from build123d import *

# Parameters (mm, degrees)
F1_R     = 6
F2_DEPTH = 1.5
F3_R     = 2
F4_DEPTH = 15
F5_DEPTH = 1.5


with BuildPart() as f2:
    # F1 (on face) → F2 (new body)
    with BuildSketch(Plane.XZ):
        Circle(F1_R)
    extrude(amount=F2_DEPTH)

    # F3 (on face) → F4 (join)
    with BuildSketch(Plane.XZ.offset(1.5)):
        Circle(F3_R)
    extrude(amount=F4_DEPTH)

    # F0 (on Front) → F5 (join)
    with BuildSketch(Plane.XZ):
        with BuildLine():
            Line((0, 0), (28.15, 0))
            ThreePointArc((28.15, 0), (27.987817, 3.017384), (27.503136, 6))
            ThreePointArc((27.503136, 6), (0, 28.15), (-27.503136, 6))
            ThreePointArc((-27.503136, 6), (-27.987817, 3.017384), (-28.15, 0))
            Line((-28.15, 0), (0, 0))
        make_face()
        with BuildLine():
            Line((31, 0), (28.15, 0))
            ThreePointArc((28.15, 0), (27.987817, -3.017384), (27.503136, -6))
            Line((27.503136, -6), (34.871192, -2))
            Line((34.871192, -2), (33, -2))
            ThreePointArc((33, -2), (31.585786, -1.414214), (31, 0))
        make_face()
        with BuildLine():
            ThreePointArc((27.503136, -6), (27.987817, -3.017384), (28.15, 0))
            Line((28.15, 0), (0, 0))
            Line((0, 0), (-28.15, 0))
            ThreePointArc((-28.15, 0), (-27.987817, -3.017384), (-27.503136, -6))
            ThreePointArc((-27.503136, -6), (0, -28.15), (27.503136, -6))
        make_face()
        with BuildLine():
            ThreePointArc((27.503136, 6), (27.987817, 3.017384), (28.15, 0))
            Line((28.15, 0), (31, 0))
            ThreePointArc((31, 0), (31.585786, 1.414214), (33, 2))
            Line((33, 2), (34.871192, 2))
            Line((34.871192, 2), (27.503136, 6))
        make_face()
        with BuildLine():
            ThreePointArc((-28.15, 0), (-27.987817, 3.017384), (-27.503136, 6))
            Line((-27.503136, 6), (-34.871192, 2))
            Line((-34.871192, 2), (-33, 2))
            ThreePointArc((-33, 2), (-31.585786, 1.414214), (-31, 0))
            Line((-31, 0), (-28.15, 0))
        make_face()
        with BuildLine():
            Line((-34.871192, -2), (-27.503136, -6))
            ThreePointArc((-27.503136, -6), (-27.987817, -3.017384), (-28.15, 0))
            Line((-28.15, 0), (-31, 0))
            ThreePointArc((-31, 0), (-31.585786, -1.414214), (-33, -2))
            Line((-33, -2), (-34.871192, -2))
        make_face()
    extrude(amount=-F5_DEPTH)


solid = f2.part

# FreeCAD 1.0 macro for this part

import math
import FreeCAD as App
import Part
import Sketcher
from FreeCAD import Vector
Q = App.Units.Quantity

doc = App.newDocument("Part")
params = doc.addObject("Spreadsheet::Sheet", "Params")
for row, (alias, value) in enumerate([
    ("sketch1_diameter", "12 mm"),
    ("pad1_length", "1.5 mm"),
    ("sketch2_diameter", "4 mm"),
    ("pad2_length", "15 mm"),
    ("sketch3_radius", "1.999999 mm"),
    ("sketch3_radius2", "28.15 mm"),
    ("pad3_length", "1.5 mm"),
], start=1):
    params.set(f"A{row}", alias)
    params.set(f"B{row}", "=" + value)
    params.setAlias(f"B{row}", alias)

body = doc.addObject("PartDesign::Body", "Body")

sketch1 = doc.addObject("Sketcher::SketchObject", "Sketch")
body.addObject(sketch1)
sketch1.AttachmentSupport = (doc.XZ_Plane, [""])
sketch1.MapMode = "FlatFace"
sketch1.addGeometry(Part.Circle(Vector(0, 0, 0), Vector(0, 0, 1), 6), False)
sketch1.addConstraint([
    Sketcher.Constraint("Coincident", 0, 3, -1, 1),
    Sketcher.Constraint("Diameter", 0, Q("12 mm")),
])
sketch1.setExpression("Constraints[1]", "Params.sketch1_diameter")
pad1 = doc.addObject("PartDesign::Pad", "Pad")
body.addObject(pad1)
pad1.Profile = sketch1
pad1.setExpression("Length", "Params.pad1_length")

sketch2 = doc.addObject("Sketcher::SketchObject", "Sketch001")
body.addObject(sketch2)
sketch2.AttachmentSupport = (doc.XZ_Plane, [""])
sketch2.MapMode = "FlatFace"
sketch2.AttachmentOffset = App.Placement(Vector(0, 0, 1.5), App.Rotation())
sketch2.addGeometry(Part.Circle(Vector(0, 0, 0), Vector(0, 0, 1), 2), False)
sketch2.addConstraint([
    Sketcher.Constraint("Coincident", 0, 3, -1, 1),
    Sketcher.Constraint("Diameter", 0, Q("4 mm")),
])
sketch2.setExpression("Constraints[1]", "Params.sketch2_diameter")
pad2 = doc.addObject("PartDesign::Pad", "Pad001")
body.addObject(pad2)
pad2.Profile = sketch2
pad2.setExpression("Length", "Params.pad2_length")

sketch3 = doc.addObject("Sketcher::SketchObject", "Sketch002")
body.addObject(sketch3)
sketch3.AttachmentSupport = (doc.XZ_Plane, [""])
sketch3.MapMode = "FlatFace"
sketch3.addGeometry([
    Part.ArcOfCircle(Part.Circle(Vector(0, 0, 0), Vector(0, 0, 1), 28.1), math.radians(12), math.radians(168)),
    Part.LineSegment(Vector(-27.5, 6, 0), Vector(-34.9, 2, 0)),
    Part.LineSegment(Vector(-34.9, 2, 0), Vector(-33, 2, 0)),
    Part.ArcOfCircle(Part.Circle(Vector(-33, 0, 0), Vector(0, 0, 1), 2), math.radians(0), math.radians(90)),
    Part.ArcOfCircle(Part.Circle(Vector(-33, 0, 0), Vector(0, 0, 1), 2), math.radians(-90), math.radians(0)),
    Part.LineSegment(Vector(-33, -2, 0), Vector(-34.9, -2, 0)),
    Part.LineSegment(Vector(-34.9, -2, 0), Vector(-27.5, -6, 0)),
    Part.ArcOfCircle(Part.Circle(Vector(0, 0, 0), Vector(0, 0, 1), 28.1), math.radians(-168), math.radians(-12)),
    Part.LineSegment(Vector(27.5, -6, 0), Vector(34.9, -2, 0)),
    Part.LineSegment(Vector(34.9, -2, 0), Vector(33, -2, 0)),
    Part.ArcOfCircle(Part.Circle(Vector(33, 0, 0), Vector(0, 0, 1), 2), math.radians(180), math.radians(270)),
    Part.ArcOfCircle(Part.Circle(Vector(33, 0, 0), Vector(0, 0, 1), 2), math.radians(90), math.radians(180)),
    Part.LineSegment(Vector(33, 2, 0), Vector(34.9, 2, 0)),
    Part.LineSegment(Vector(34.9, 2, 0), Vector(27.5, 6, 0)),
], False)
sketch3.addConstraint([
    Sketcher.Constraint("Coincident", 0, 2, 1, 1),
    Sketcher.Constraint("Coincident", 1, 2, 2, 1),
    Sketcher.Constraint("Tangent", 2, 2, 3, 2),
    Sketcher.Constraint("Tangent", 3, 1, 4, 2),
    Sketcher.Constraint("Tangent", 4, 1, 5, 1),
    Sketcher.Constraint("Coincident", 5, 2, 6, 1),
    Sketcher.Constraint("Coincident", 6, 2, 7, 1),
    Sketcher.Constraint("Coincident", 7, 2, 8, 1),
    Sketcher.Constraint("Coincident", 8, 2, 9, 1),
    Sketcher.Constraint("Tangent", 9, 2, 10, 2),
    Sketcher.Constraint("Tangent", 10, 1, 11, 2),
    Sketcher.Constraint("Tangent", 11, 1, 12, 1),
    Sketcher.Constraint("Coincident", 12, 2, 13, 1),
    Sketcher.Constraint("Coincident", 13, 2, 0, 1),
    Sketcher.Constraint("Horizontal", 2),
    Sketcher.Constraint("Horizontal", 5),
    Sketcher.Constraint("Horizontal", 9),
    Sketcher.Constraint("Horizontal", 12),
    Sketcher.Constraint("Coincident", 0, 3, -1, 1),
    Sketcher.Constraint("Coincident", 7, 3, -1, 1),
    Sketcher.Constraint("Equal", 3, 4),
    Sketcher.Constraint("Equal", 0, 7),
    Sketcher.Constraint("Equal", 4, 10),
    Sketcher.Constraint("Equal", 10, 11),
    Sketcher.Constraint("Symmetric", 3, 3, 10, 3, -1, 1),
    Sketcher.Constraint("Symmetric", 5, 2, 8, 2, -2),
    Sketcher.Constraint("PointOnObject", 3, 1, -1),
    Sketcher.Constraint("PointOnObject", 10, 1, -1),
    Sketcher.Constraint("Parallel", 1, 8),
    Sketcher.Constraint("Parallel", 6, 13),
    Sketcher.Constraint("Horizontal", 6, 2, 7, 2),
    Sketcher.Constraint("Horizontal", 0, 2, 13, 2),
    Sketcher.Constraint("Vertical", 1, 2, 5, 2),
    Sketcher.Constraint("Radius", 3, Q("1.999999 mm")),
    Sketcher.Constraint("Radius", 0, Q("28.15 mm")),
    Sketcher.Constraint("DistanceX", 3, 3, -1, 1, Q("32.999999 mm")),
    Sketcher.Constraint("DistanceY", -1, 1, 0, 2, Q("6 mm")),
    Sketcher.Constraint("Distance", 1, Q("8.383809 mm")),
])
sketch3.setExpression("Constraints[33]", "Params.sketch3_radius")
sketch3.setExpression("Constraints[34]", "Params.sketch3_radius2")
pad3 = doc.addObject("PartDesign::Pad", "Pad002")
body.addObject(pad3)
pad3.Profile = sketch3
pad3.setExpression("Length", "Params.pad3_length")
pad3.Reversed = True

doc.recompute()
